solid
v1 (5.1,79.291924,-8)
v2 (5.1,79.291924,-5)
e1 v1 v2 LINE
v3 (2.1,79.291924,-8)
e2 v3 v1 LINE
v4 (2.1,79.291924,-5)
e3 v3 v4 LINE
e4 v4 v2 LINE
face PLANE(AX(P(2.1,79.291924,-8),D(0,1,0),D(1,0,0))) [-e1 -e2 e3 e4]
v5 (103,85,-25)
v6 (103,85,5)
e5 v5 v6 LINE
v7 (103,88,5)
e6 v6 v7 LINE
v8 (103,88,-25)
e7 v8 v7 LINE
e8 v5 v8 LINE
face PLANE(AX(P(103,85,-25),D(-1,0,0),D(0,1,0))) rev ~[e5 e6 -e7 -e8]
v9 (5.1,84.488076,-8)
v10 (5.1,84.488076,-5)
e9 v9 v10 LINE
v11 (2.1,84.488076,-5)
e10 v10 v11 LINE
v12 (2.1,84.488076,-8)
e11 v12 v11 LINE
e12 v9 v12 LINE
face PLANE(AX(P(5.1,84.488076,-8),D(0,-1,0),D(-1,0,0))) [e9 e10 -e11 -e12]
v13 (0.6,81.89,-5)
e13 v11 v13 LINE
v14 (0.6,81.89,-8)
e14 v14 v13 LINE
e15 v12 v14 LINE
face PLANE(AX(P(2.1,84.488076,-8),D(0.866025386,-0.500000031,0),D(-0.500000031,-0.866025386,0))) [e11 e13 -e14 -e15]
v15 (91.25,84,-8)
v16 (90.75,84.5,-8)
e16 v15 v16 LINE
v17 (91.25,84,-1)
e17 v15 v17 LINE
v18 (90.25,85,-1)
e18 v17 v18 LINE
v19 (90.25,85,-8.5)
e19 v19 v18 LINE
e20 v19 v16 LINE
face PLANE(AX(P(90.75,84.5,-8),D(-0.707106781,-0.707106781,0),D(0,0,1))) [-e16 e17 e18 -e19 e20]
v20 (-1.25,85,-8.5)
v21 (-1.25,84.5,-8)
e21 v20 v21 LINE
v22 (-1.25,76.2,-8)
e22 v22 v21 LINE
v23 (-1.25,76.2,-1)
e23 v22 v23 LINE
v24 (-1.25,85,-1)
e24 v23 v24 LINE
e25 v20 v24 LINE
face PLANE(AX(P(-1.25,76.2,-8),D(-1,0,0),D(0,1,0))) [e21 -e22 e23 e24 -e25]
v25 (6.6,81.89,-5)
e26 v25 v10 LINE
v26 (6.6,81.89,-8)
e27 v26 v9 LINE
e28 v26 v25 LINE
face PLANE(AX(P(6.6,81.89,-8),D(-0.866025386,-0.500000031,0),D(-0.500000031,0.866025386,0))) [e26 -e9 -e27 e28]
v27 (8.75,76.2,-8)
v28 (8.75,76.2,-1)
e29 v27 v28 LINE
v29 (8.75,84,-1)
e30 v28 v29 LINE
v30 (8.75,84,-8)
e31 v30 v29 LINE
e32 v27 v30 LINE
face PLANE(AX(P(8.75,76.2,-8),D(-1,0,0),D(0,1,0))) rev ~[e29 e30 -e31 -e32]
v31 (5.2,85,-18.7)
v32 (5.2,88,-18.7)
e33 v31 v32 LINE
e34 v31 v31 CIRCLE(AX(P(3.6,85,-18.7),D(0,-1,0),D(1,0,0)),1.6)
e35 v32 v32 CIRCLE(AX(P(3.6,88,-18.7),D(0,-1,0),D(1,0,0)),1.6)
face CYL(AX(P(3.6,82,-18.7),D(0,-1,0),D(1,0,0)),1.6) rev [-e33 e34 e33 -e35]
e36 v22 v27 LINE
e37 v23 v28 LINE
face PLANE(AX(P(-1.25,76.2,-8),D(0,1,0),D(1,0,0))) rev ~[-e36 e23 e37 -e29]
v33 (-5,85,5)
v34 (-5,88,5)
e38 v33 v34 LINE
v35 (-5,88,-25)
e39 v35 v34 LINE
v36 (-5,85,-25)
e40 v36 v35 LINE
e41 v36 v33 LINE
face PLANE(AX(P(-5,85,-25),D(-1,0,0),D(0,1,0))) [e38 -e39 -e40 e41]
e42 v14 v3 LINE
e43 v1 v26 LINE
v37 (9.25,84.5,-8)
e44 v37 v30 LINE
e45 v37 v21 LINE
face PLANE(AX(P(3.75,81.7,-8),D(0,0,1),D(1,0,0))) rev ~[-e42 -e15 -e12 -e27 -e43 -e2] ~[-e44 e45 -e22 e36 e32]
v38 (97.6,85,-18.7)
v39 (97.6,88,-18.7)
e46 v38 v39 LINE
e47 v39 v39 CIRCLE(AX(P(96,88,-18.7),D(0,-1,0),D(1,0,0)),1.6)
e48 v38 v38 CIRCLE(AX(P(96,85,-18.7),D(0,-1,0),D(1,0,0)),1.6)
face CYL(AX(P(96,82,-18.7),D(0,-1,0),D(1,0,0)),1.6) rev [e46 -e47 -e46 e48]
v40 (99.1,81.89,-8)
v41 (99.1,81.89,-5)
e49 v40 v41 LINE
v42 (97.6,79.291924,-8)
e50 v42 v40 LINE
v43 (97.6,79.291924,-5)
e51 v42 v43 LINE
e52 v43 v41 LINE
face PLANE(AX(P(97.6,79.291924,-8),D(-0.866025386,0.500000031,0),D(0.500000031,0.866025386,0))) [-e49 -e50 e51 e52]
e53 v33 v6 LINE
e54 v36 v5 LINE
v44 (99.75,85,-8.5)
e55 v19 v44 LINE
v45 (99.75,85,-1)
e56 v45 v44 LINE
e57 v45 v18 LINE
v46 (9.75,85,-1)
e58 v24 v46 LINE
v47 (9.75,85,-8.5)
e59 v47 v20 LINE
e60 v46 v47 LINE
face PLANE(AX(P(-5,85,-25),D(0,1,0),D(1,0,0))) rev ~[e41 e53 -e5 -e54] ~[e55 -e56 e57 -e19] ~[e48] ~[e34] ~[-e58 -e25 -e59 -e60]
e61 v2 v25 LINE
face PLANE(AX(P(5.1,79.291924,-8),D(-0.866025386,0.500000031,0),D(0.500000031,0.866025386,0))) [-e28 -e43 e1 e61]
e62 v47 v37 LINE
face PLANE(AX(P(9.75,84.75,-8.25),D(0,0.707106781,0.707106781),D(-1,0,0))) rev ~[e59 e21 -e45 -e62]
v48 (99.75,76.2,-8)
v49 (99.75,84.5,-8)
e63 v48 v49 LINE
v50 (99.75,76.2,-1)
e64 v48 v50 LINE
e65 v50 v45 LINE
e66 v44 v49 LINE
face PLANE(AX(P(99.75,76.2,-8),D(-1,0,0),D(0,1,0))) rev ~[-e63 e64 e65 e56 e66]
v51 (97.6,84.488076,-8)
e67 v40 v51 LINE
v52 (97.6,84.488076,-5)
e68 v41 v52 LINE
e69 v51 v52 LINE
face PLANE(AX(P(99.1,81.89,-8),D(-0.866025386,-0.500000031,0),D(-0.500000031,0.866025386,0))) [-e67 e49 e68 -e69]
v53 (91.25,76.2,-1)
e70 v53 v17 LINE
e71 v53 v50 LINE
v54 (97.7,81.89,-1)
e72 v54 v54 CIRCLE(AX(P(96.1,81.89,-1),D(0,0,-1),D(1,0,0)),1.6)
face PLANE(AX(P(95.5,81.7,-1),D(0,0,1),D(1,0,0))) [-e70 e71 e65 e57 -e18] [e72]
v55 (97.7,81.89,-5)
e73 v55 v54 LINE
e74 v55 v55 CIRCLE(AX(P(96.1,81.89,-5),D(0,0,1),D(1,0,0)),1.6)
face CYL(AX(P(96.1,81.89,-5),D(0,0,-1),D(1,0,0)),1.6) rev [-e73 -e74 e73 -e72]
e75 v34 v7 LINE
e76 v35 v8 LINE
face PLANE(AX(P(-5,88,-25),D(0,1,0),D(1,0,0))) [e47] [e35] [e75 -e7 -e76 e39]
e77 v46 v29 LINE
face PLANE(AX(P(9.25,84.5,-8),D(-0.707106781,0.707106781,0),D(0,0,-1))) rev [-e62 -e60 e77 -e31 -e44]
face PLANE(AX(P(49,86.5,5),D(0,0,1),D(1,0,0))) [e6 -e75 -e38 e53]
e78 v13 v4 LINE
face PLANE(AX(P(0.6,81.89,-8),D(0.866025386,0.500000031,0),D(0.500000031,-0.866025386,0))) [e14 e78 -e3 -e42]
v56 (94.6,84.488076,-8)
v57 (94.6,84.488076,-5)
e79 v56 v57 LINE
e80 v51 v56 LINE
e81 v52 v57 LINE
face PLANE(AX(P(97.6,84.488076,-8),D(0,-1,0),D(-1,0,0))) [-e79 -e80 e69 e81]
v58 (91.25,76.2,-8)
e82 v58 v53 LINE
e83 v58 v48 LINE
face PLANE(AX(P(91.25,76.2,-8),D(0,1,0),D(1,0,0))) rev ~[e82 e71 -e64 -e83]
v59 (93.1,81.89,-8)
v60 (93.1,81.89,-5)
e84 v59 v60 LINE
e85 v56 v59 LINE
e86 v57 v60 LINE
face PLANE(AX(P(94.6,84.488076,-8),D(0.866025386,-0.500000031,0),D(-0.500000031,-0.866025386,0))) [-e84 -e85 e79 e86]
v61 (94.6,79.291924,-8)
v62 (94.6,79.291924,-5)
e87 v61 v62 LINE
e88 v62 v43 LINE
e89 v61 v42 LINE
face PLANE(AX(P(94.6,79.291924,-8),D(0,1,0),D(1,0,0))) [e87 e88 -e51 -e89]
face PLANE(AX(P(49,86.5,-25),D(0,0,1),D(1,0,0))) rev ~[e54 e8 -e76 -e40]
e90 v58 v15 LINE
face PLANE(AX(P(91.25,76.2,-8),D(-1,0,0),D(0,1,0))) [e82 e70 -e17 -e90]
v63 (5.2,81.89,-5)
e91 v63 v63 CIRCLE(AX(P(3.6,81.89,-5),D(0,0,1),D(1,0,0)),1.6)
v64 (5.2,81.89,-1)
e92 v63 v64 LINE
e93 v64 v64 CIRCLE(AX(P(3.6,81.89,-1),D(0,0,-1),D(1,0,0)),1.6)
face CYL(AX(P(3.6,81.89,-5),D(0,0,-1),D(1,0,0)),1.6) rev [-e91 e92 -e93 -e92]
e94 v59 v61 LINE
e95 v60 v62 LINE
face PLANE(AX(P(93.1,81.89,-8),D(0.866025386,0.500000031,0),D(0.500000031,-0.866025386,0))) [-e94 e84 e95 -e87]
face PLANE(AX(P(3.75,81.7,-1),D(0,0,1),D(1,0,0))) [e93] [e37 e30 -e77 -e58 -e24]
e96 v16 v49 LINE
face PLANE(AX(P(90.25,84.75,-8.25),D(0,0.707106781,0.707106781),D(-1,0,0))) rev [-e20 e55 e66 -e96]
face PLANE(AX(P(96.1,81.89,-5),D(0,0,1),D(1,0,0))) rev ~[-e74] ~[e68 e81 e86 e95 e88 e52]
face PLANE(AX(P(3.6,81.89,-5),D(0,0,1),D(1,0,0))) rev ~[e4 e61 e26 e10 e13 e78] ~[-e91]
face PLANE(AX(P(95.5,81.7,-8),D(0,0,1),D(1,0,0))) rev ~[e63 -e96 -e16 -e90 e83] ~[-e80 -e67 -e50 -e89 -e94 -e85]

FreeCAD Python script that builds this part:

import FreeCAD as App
import Part
import Sketcher
Q = App.Units.Quantity


def edges_at(feature, points):
    """Names of the edges that pass closest to the given points."""
    edges = feature.Shape.Edges
    near = lambda p: min(range(len(edges)), key=lambda i: edges[i].distToShape(Part.Vertex(*p))[0])
    return sorted({f"Edge{near(p) + 1}" for p in points})

doc = App.newDocument("Part")
body = doc.addObject("PartDesign::Body", "Body")

# Sketch on XY plane
sketch1 = body.newObject("Sketcher::SketchObject", "Sketch")
sketch1.AttachmentSupport = (doc.getObject("XY_Plane"), [""])
sketch1.MapMode = "FlatFace"
sketch1.AttachmentOffset = App.Placement(App.Vector(0, 0, -5), App.Rotation())
sketch1.addGeometry(Part.Circle(App.Vector(3.6, 5.7, 0), App.Vector(0, 0, 1), 1.6), False)
sketch1.addConstraint([
    Sketcher.Constraint("Diameter", 0, Q("3.2 mm")),
    Sketcher.Constraint("DistanceX", -1, 1, 0, 3, Q("3.6 mm")),
    Sketcher.Constraint("DistanceY", -1, 1, 0, 3, Q("5.69 mm")),
])
pad1 = body.newObject("PartDesign::Pad", "Pad")
pad1.Profile = sketch1
pad1.Length = 10
body2 = doc.addObject("PartDesign::Body", "Body001")

# Sketch on XY plane
sketch2 = body2.newObject("Sketcher::SketchObject", "Sketch001")
sketch2.AttachmentSupport = (doc.getObject("XY_Plane001"), [""])
sketch2.MapMode = "FlatFace"
sketch2.AttachmentOffset = App.Placement(App.Vector(0, 0, -7), App.Rotation())
sketch2.addGeometry([
    Part.LineSegment(App.Vector(6.6, 5.7, 0), App.Vector(5.1, 8.3, 0)),  # 0
    Part.LineSegment(App.Vector(5.1, 8.3, 0), App.Vector(2.1, 8.3, 0)),  # 1
    Part.LineSegment(App.Vector(2.1, 8.3, 0), App.Vector(0.6, 5.7, 0)),  # 2
    Part.LineSegment(App.Vector(0.6, 5.7, 0), App.Vector(2.1, 3.1, 0)),  # 3
    Part.LineSegment(App.Vector(2.1, 3.1, 0), App.Vector(5.1, 3.1, 0)),  # 4
    Part.LineSegment(App.Vector(5.1, 3.1, 0), App.Vector(6.6, 5.7, 0)),  # 5
], False)
sketch2.addConstraint([
    Sketcher.Constraint("Coincident", 0, 2, 1, 1),
    Sketcher.Constraint("Coincident", 1, 2, 2, 1),
    Sketcher.Constraint("Coincident", 2, 2, 3, 1),
    Sketcher.Constraint("Coincident", 3, 2, 4, 1),
    Sketcher.Constraint("Coincident", 4, 2, 5, 1),
    Sketcher.Constraint("Coincident", 5, 2, 0, 1),
    Sketcher.Constraint("Horizontal", 1),
    Sketcher.Constraint("Horizontal", 4),
    Sketcher.Constraint("Parallel", 0, 3),
    Sketcher.Constraint("Parallel", 2, 5),
    Sketcher.Constraint("Horizontal", 2, 2, 5, 2),
    Sketcher.Constraint("Vertical", 1, 2, 3, 2),
    Sketcher.Constraint("Vertical", 0, 2, 4, 2),
    Sketcher.Constraint("DistanceX", 1, 2, 1, 1, Q("3 mm")),
    Sketcher.Constraint("Angle", 0, Q("120.000002 deg")),
    Sketcher.Constraint("Distance", 0, Q("3 mm")),
    Sketcher.Constraint("DistanceX", -1, 1, 0, 2, Q("5.1 mm")),
    Sketcher.Constraint("DistanceY", -1, 1, 2, 2, Q("5.69 mm")),
])
pad2 = body2.newObject("PartDesign::Pad", "Pad001")
pad2.Profile = sketch2
pad2.Length = 3
body3 = doc.addObject("PartDesign::Body", "Body002")

# Sketch on XY plane
sketch3 = body3.newObject("Sketcher::SketchObject", "Sketch002")
sketch3.AttachmentSupport = (doc.getObject("XY_Plane002"), [""])
sketch3.MapMode = "FlatFace"
sketch3.AttachmentOffset = App.Placement(App.Vector(0, 0, -7), App.Rotation())
sketch3.addGeometry([
    Part.LineSegment(App.Vector(-1, 11, 0), App.Vector(-1, 0, 0)),
    Part.LineSegment(App.Vector(-1, 0, 0), App.Vector(9, 0, 0)),
    Part.LineSegment(App.Vector(9, 0, 0), App.Vector(9, 11, 0)),
    Part.LineSegment(App.Vector(9, 11, 0), App.Vector(-1, 11, 0)),
], False)
sketch3.addConstraint([
    Sketcher.Constraint("Coincident", 0, 2, 1, 1),
    Sketcher.Constraint("Coincident", 1, 2, 2, 1),
    Sketcher.Constraint("Coincident", 2, 2, 3, 1),
    Sketcher.Constraint("Coincident", 3, 2, 0, 1),
    Sketcher.Constraint("Vertical", 0),
    Sketcher.Constraint("Horizontal", 1),
    Sketcher.Constraint("Vertical", 2),
    Sketcher.Constraint("Horizontal", 3),
    Sketcher.Constraint("PointOnObject", 0, 2, -1),
    Sketcher.Constraint("DistanceX", 1, 1, 1, 2, Q("10 mm")),
    Sketcher.Constraint("DistanceY", 0, 2, 0, 1, Q("11 mm")),
    Sketcher.Constraint("DistanceX", 0, 2, -1, 1, Q("1.25 mm")),
])
pad3 = body3.newObject("PartDesign::Pad", "Pad002")
pad3.Profile = sketch3
pad3.Length = 7
doc.recompute()

boolean = body3.newObject("PartDesign::Boolean", "Boolean")
boolean.Type = "Cut"
boolean.addObjects([body2])
body4 = doc.addObject("PartDesign::Body", "Body003")
doc.recompute()

body3.Placement = App.Placement(App.Vector(0, 0, -1), App.Rotation(App.Vector(0, 0, 1), 0))
boolean2 = body4.newObject("PartDesign::Boolean", "Boolean001")
boolean2.Type = "Fuse"
boolean2.addObjects([body3])
doc.recompute()

boolean3 = body4.newObject("PartDesign::Boolean", "Boolean002")
boolean3.Type = "Cut"
boolean3.addObjects([body])
body5 = doc.addObject("PartDesign::Body", "Body004")
doc.recompute()

body4.Placement = App.Placement(App.Vector(0, 76.2, 0), App.Rotation(App.Vector(0, 0, 1), 0))
boolean4 = body5.newObject("PartDesign::Boolean", "Boolean003")
boolean4.Type = "Fuse"
boolean4.addObjects([body4])
body6 = doc.addObject("PartDesign::Body", "Body005")

# Sketch on XY plane
sketch4 = body6.newObject("Sketcher::SketchObject", "Sketch003")
sketch4.AttachmentSupport = (doc.getObject("XY_Plane005"), [""])
sketch4.MapMode = "FlatFace"
sketch4.AttachmentOffset = App.Placement(App.Vector(0, 0, -5), App.Rotation())
sketch4.addGeometry(Part.Circle(App.Vector(3.6, 5.7, 0), App.Vector(0, 0, 1), 1.6), False)
sketch4.addConstraint([
    Sketcher.Constraint("Diameter", 0, Q("3.2 mm")),
    Sketcher.Constraint("DistanceX", -1, 1, 0, 3, Q("3.6 mm")),
    Sketcher.Constraint("DistanceY", -1, 1, 0, 3, Q("5.69 mm")),
])
pad4 = body6.newObject("PartDesign::Pad", "Pad003")
pad4.Profile = sketch4
pad4.Length = 10
body7 = doc.addObject("PartDesign::Body", "Body006")

# Sketch on XY plane
sketch5 = body7.newObject("Sketcher::SketchObject", "Sketch004")
sketch5.AttachmentSupport = (doc.getObject("XY_Plane006"), [""])
sketch5.MapMode = "FlatFace"
sketch5.AttachmentOffset = App.Placement(App.Vector(0, 0, -7), App.Rotation())
sketch5.addGeometry([
    Part.LineSegment(App.Vector(6.6, 5.7, 0), App.Vector(5.1, 8.3, 0)),  # 0
    Part.LineSegment(App.Vector(5.1, 8.3, 0), App.Vector(2.1, 8.3, 0)),  # 1
    Part.LineSegment(App.Vector(2.1, 8.3, 0), App.Vector(0.6, 5.7, 0)),  # 2
    Part.LineSegment(App.Vector(0.6, 5.7, 0), App.Vector(2.1, 3.1, 0)),  # 3
    Part.LineSegment(App.Vector(2.1, 3.1, 0), App.Vector(5.1, 3.1, 0)),  # 4
    Part.LineSegment(App.Vector(5.1, 3.1, 0), App.Vector(6.6, 5.7, 0)),  # 5
], False)
sketch5.addConstraint([
    Sketcher.Constraint("Coincident", 0, 2, 1, 1),
    Sketcher.Constraint("Coincident", 1, 2, 2, 1),
    Sketcher.Constraint("Coincident", 2, 2, 3, 1),
    Sketcher.Constraint("Coincident", 3, 2, 4, 1),
    Sketcher.Constraint("Coincident", 4, 2, 5, 1),
    Sketcher.Constraint("Coincident", 5, 2, 0, 1),
    Sketcher.Constraint("Horizontal", 1),
    Sketcher.Constraint("Horizontal", 4),
    Sketcher.Constraint("Parallel", 0, 3),
    Sketcher.Constraint("Parallel", 2, 5),
    Sketcher.Constraint("Horizontal", 2, 2, 5, 2),
    Sketcher.Constraint("Vertical", 1, 2, 3, 2),
    Sketcher.Constraint("Vertical", 0, 2, 4, 2),
    Sketcher.Constraint("DistanceX", 1, 2, 1, 1, Q("3 mm")),
    Sketcher.Constraint("Angle", 0, Q("120.000002 deg")),
    Sketcher.Constraint("Distance", 0, Q("3 mm")),
    Sketcher.Constraint("DistanceX", -1, 1, 0, 2, Q("5.1 mm")),
    Sketcher.Constraint("DistanceY", -1, 1, 2, 2, Q("5.69 mm")),
])
pad5 = body7.newObject("PartDesign::Pad", "Pad004")
pad5.Profile = sketch5
pad5.Length = 3
body8 = doc.addObject("PartDesign::Body", "Body007")

# Sketch on XY plane
sketch6 = body8.newObject("Sketcher::SketchObject", "Sketch005")
sketch6.AttachmentSupport = (doc.getObject("XY_Plane007"), [""])
sketch6.MapMode = "FlatFace"
sketch6.AttachmentOffset = App.Placement(App.Vector(0, 0, -7), App.Rotation())
sketch6.addGeometry([
    Part.LineSegment(App.Vector(-1, 11, 0), App.Vector(-1, 0, 0)),
    Part.LineSegment(App.Vector(-1, 0, 0), App.Vector(7, 0, 0)),
    Part.LineSegment(App.Vector(7, 0, 0), App.Vector(7, 11, 0)),
    Part.LineSegment(App.Vector(7, 11, 0), App.Vector(-1, 11, 0)),
], False)
sketch6.addConstraint([
    Sketcher.Constraint("Coincident", 0, 2, 1, 1),
    Sketcher.Constraint("Coincident", 1, 2, 2, 1),
    Sketcher.Constraint("Coincident", 2, 2, 3, 1),
    Sketcher.Constraint("Coincident", 3, 2, 0, 1),
    Sketcher.Constraint("Vertical", 0),
    Sketcher.Constraint("Horizontal", 1),
    Sketcher.Constraint("Vertical", 2),
    Sketcher.Constraint("Horizontal", 3),
    Sketcher.Constraint("PointOnObject", 0, 2, -1),
    Sketcher.Constraint("DistanceY", 0, 2, 0, 1, Q("11 mm")),
    Sketcher.Constraint("DistanceX", 1, 1, 1, 2, Q("8.5 mm")),
    Sketcher.Constraint("DistanceX", 0, 2, -1, 1, Q("1.25 mm")),
])
pad6 = body8.newObject("PartDesign::Pad", "Pad005")
pad6.Profile = sketch6
pad6.Length = 7
doc.recompute()

boolean5 = body8.newObject("PartDesign::Boolean", "Boolean004")
boolean5.Type = "Cut"
boolean5.addObjects([body7])
body9 = doc.addObject("PartDesign::Body", "Body008")
doc.recompute()

body8.Placement = App.Placement(App.Vector(0, 0, -1), App.Rotation(App.Vector(0, 0, 1), 0))
boolean6 = body9.newObject("PartDesign::Boolean", "Boolean005")
boolean6.Type = "Fuse"
boolean6.addObjects([body8])
doc.recompute()

boolean7 = body9.newObject("PartDesign::Boolean", "Boolean006")
boolean7.Type = "Cut"
boolean7.addObjects([body6])
body10 = doc.addObject("PartDesign::Body", "Body009")
doc.recompute()

body9.Placement = App.Placement(App.Vector(92.5, 76.2, 0), App.Rotation(App.Vector(0, 0, 1), 0))
boolean8 = body10.newObject("PartDesign::Boolean", "Boolean007")
boolean8.Type = "Fuse"
boolean8.addObjects([body9])
body11 = doc.addObject("PartDesign::Body", "Body010")

# Sketch on XY plane
sketch7 = body11.newObject("Sketcher::SketchObject", "Sketch006")
sketch7.AttachmentSupport = (doc.getObject("XY_Plane010"), [""])
sketch7.MapMode = "FlatFace"
sketch7.addGeometry(Part.Circle(App.Vector(0, 0, 0), App.Vector(0, 0, 1), 1.6), False)
sketch7.addConstraint([
    Sketcher.Constraint("Coincident", 0, 3, -1, 1),
    Sketcher.Constraint("Diameter", 0, Q("3.2 mm")),
])
pad7 = body11.newObject("PartDesign::Pad", "Pad006")
pad7.Profile = sketch7
pad7.Length = 10
body12 = doc.addObject("PartDesign::Body", "Body011")
doc.recompute()

body11.Placement = App.Placement(App.Vector(0, 0, 0), App.Rotation(App.Vector(1, 0, 0), 270))
boolean9 = body12.newObject("PartDesign::Boolean", "Boolean008")
boolean9.Type = "Fuse"
boolean9.addObjects([body11])
body13 = doc.addObject("PartDesign::Body", "Body012")
doc.recompute()

body12.Placement = App.Placement(App.Vector(96, 82, -18.7), App.Rotation(App.Vector(0, 0, 1), 0))
boolean10 = body13.newObject("PartDesign::Boolean", "Boolean009")
boolean10.Type = "Fuse"
boolean10.addObjects([body12])
body14 = doc.addObject("PartDesign::Body", "Body013")

# Sketch on XY plane
sketch8 = body14.newObject("Sketcher::SketchObject", "Sketch007")
sketch8.AttachmentSupport = (doc.getObject("XY_Plane013"), [""])
sketch8.MapMode = "FlatFace"
sketch8.addGeometry(Part.Circle(App.Vector(0, 0, 0), App.Vector(0, 0, 1), 1.6), False)
sketch8.addConstraint([
    Sketcher.Constraint("Coincident", 0, 3, -1, 1),
    Sketcher.Constraint("Diameter", 0, Q("3.2 mm")),
])
pad8 = body14.newObject("PartDesign::Pad", "Pad007")
pad8.Profile = sketch8
pad8.Length = 10
body15 = doc.addObject("PartDesign::Body", "Body014")
doc.recompute()

body14.Placement = App.Placement(App.Vector(0, 0, 0), App.Rotation(App.Vector(1, 0, 0), 270))
boolean11 = body15.newObject("PartDesign::Boolean", "Boolean010")
boolean11.Type = "Fuse"
boolean11.addObjects([body14])
body16 = doc.addObject("PartDesign::Body", "Body015")
body16.AllowCompound = True
doc.recompute()

body15.Placement = App.Placement(App.Vector(3.6, 82, -18.7), App.Rotation(App.Vector(0, 0, 1), 0))
boolean12 = body16.newObject("PartDesign::Boolean", "Boolean011")
boolean12.Type = "Fuse"
boolean12.addObjects([body15])
doc.recompute()

boolean13 = body16.newObject("PartDesign::Boolean", "Boolean012")
boolean13.Type = "Fuse"
boolean13.addObjects([body13])
body17 = doc.addObject("PartDesign::Body", "Body016")

# Sketch on XY plane
sketch9 = body17.newObject("Sketcher::SketchObject", "Sketch008")
sketch9.AttachmentSupport = (doc.getObject("XY_Plane016"), [""])
sketch9.MapMode = "FlatFace"
sketch9.AttachmentOffset = App.Placement(App.Vector(0, 0, -25), App.Rotation())
sketch9.addGeometry([
    Part.LineSegment(App.Vector(-5, 88, 0), App.Vector(-5, 85, 0)),
    Part.LineSegment(App.Vector(-5, 85, 0), App.Vector(103, 85, 0)),
    Part.LineSegment(App.Vector(103, 85, 0), App.Vector(103, 88, 0)),
    Part.LineSegment(App.Vector(103, 88, 0), App.Vector(-5, 88, 0)),
], False)
sketch9.addConstraint([
    Sketcher.Constraint("Coincident", 0, 2, 1, 1),
    Sketcher.Constraint("Coincident", 1, 2, 2, 1),
    Sketcher.Constraint("Coincident", 2, 2, 3, 1),
    Sketcher.Constraint("Coincident", 3, 2, 0, 1),
    Sketcher.Constraint("Vertical", 0),
    Sketcher.Constraint("Horizontal", 1),
    Sketcher.Constraint("Vertical", 2),
    Sketcher.Constraint("Horizontal", 3),
    Sketcher.Constraint("DistanceX", 1, 1, 1, 2, Q("108 mm")),
    Sketcher.Constraint("DistanceY", 0, 2, 0, 1, Q("3 mm")),
    Sketcher.Constraint("DistanceX", 0, 2, -1, 1, Q("5 mm")),
    Sketcher.Constraint("DistanceY", -1, 1, 0, 2, Q("85 mm")),
])
pad9 = body17.newObject("PartDesign::Pad", "Pad008")
pad9.Profile = sketch9
pad9.Length = 30
doc.recompute()

boolean14 = body17.newObject("PartDesign::Boolean", "Boolean013")
boolean14.Type = "Cut"
boolean14.addObjects([body16])
doc.recompute()

boolean15 = body17.newObject("PartDesign::Boolean", "Boolean014")
boolean15.Type = "Fuse"
boolean15.addObjects([body5])
doc.recompute()

boolean16 = body17.newObject("PartDesign::Boolean", "Boolean015")
boolean16.Type = "Fuse"
boolean16.addObjects([body10])
doc.recompute()

chamfer = body17.newObject("PartDesign::Chamfer", "Chamfer")
chamfer.Base = (boolean16, edges_at(boolean16, [(91.25, 85, -4.5), (8.75, 85, -4.5)]))
chamfer.Size = 1
doc.recompute()

chamfer2 = body17.newObject("PartDesign::Chamfer", "Chamfer001")
chamfer2.Base = (chamfer, edges_at(chamfer, [(95, 85, -8)]))
chamfer2.Size = 0.5
doc.recompute()

chamfer3 = body17.newObject("PartDesign::Chamfer", "Chamfer002")
chamfer3.Base = (chamfer2, edges_at(chamfer2, [(4.25, 85, -8)]))
chamfer3.Size = 0.5

doc.recompute()
